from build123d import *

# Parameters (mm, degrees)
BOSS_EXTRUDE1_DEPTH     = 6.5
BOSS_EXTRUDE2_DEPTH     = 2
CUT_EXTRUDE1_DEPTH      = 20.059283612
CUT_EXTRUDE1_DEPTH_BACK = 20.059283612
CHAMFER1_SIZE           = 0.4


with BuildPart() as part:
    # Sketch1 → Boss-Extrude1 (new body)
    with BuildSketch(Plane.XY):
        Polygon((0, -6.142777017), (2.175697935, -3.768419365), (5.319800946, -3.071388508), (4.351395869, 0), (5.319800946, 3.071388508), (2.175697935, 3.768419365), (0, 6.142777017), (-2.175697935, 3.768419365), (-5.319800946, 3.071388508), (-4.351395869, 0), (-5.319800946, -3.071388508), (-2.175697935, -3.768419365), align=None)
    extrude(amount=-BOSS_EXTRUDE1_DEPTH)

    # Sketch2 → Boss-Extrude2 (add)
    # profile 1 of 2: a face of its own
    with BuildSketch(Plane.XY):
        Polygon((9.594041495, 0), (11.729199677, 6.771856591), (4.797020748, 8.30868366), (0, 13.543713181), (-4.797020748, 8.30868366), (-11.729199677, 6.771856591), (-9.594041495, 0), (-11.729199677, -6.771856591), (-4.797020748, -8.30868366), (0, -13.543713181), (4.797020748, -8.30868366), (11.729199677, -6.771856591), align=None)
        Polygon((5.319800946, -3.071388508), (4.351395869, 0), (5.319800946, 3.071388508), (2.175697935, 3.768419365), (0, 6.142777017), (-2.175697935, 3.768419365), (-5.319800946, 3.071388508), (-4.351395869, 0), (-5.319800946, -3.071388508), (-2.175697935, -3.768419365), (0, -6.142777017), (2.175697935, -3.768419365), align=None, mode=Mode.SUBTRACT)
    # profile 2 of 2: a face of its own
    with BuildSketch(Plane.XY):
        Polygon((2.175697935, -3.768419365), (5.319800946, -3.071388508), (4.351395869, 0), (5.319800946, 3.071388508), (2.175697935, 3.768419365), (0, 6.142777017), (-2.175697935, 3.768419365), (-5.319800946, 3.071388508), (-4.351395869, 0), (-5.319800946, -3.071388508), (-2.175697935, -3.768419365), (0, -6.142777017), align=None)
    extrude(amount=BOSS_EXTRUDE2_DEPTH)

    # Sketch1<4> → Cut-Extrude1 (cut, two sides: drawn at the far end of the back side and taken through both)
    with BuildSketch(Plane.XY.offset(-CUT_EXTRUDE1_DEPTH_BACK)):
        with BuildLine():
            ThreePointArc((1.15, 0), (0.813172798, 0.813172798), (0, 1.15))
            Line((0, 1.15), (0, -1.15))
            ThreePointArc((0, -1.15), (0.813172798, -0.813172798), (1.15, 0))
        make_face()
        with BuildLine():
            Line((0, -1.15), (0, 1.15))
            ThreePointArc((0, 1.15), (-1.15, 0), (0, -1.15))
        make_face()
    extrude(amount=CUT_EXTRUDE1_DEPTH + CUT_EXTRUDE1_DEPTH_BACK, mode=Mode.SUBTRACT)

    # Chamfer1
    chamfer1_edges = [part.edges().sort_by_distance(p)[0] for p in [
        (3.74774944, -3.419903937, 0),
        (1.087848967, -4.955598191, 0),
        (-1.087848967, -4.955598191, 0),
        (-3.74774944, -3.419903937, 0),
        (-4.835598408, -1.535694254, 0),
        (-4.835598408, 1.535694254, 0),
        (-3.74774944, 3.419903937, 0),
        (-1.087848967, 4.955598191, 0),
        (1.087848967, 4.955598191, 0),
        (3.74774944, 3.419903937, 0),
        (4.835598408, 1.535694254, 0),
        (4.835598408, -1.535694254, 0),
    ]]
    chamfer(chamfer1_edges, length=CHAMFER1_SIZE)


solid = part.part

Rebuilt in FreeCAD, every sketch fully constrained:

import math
import FreeCAD as App
import Part
import Sketcher
from FreeCAD import Vector
Q = App.Units.Quantity


def edges_at(feature, points):
    """Names of the edges that pass closest to the given points."""
    edges = feature.Shape.Edges
    near = lambda p: min(range(len(edges)), key=lambda i: edges[i].distToShape(Part.Vertex(*p))[0])
    return sorted({f"Edge{near(p) + 1}" for p in points})


def add_polygon(sketch, points):
    """Adds a closed chain of lines whose ends are joined by coincident constraints."""
    first, n = sketch.GeometryCount, len(points)
    for a, b in zip(points, points[1:] + points[:1]):
        sketch.addGeometry(Part.LineSegment(App.Vector(*a, 0), App.Vector(*b, 0)), False)
    for i in range(n):
        sketch.addConstraint(Sketcher.Constraint("Coincident", first + i, 2, first + (i + 1) % n, 1))

doc = App.newDocument("Part")
params = doc.addObject("Spreadsheet::Sheet", "Params")
for row, (alias, value) in enumerate([
    ("pad1_length", "6.5 mm"),
    ("pad2_length", "2 mm"),
    ("sketch3_radius", "1.15 mm"),
    ("chamfer_size", "0.4 mm"),
], start=1):
    params.set(f"A{row}", alias)
    params.set(f"B{row}", "=" + value)
    params.setAlias(f"B{row}", alias)

body = doc.addObject("PartDesign::Body", "Body")

# Sketch on XY plane
sketch1 = body.newObject("Sketcher::SketchObject", "Sketch")
sketch1.AttachmentSupport = (doc.getObject("XY_Plane"), [""])
sketch1.MapMode = "FlatFace"
add_polygon(sketch1, [(0, -6.1), (2.2, -3.8), (5.3, -3.1), (4.4, 0), (5.3, 3.1), (2.2, 3.8), (0, 6.1), (-2.2, 3.8), (-5.3, 3.1), (-4.4, 0), (-5.3, -3.1), (-2.2, -3.8)])  # lines 0-11
sketch1.addConstraint([
    Sketcher.Constraint("Symmetric", 0, 2, 6, 2, -1, 1),
    Sketcher.Constraint("Symmetric", 1, 2, 7, 2, -1, 1),
    Sketcher.Constraint("Symmetric", 2, 2, 8, 2, -1, 1),
    Sketcher.Constraint("Symmetric", 3, 2, 9, 2, -1, 1),
    Sketcher.Constraint("Symmetric", 4, 2, 10, 2, -1, 1),
    Sketcher.Constraint("Symmetric", 5, 2, 11, 2, -1, 1),
    Sketcher.Constraint("Symmetric", 4, 2, 6, 2, -2),
    Sketcher.Constraint("Symmetric", 3, 2, 7, 2, -2),
    Sketcher.Constraint("PointOnObject", 2, 2, -1),
    Sketcher.Constraint("PointOnObject", 5, 2, -2),
    Sketcher.Constraint("Equal", 0, 1),
    Sketcher.Constraint("Equal", 1, 2),
    Sketcher.Constraint("Angle", 0, Q("47.5 deg")),
    Sketcher.Constraint("Angle", 1, Q("12.5 deg")),
    Sketcher.Constraint("Angle", 2, Q("107.5 deg")),
    Sketcher.Constraint("DistanceX", -1, 1, 1, 2, 5.319801),
])
pad1 = body.newObject("PartDesign::Pad", "Pad")
pad1.Profile = sketch1
pad1.setExpression("Length", "Params.pad1_length")
pad1.Reversed = True

# Sketch on XY plane
sketch2 = body.newObject("Sketcher::SketchObject", "Sketch001")
sketch2.AttachmentSupport = (doc.getObject("XY_Plane"), [""])
sketch2.MapMode = "FlatFace"
add_polygon(sketch2, [(10, 0), (12, 7), (5, 8), (0, 14), (-5, 8), (-12, 7), (-10, 0), (-12, -7), (-5, -8), (0, -14), (5, -8), (12, -7)])  # lines 0-11
sketch2.addConstraint([
    Sketcher.Constraint("Symmetric", 0, 2, 6, 2, -1, 1),
    Sketcher.Constraint("Symmetric", 1, 2, 7, 2, -1, 1),
    Sketcher.Constraint("Symmetric", 2, 2, 8, 2, -1, 1),
    Sketcher.Constraint("Symmetric", 3, 2, 9, 2, -1, 1),
    Sketcher.Constraint("Symmetric", 4, 2, 10, 2, -1, 1),
    Sketcher.Constraint("Symmetric", 5, 2, 11, 2, -1, 1),
    Sketcher.Constraint("Symmetric", 1, 2, 3, 2, -2),
    Sketcher.Constraint("Symmetric", 0, 2, 4, 2, -2),
    Sketcher.Constraint("PointOnObject", 2, 2, -2),
    Sketcher.Constraint("PointOnObject", 5, 2, -1),
    Sketcher.Constraint("Equal", 0, 1),
    Sketcher.Constraint("Equal", 1, 2),
    Sketcher.Constraint("Angle", 0, Q("72.5 deg")),
    Sketcher.Constraint("Angle", 1, Q("167.5 deg")),
    Sketcher.Constraint("Angle", 2, Q("132.5 deg")),
    Sketcher.Constraint("DistanceX", -1, 1, 0, 2, 11.7292),
])
pad2 = body.newObject("PartDesign::Pad", "Pad001")
pad2.Profile = sketch2
pad2.setExpression("Length", "Params.pad2_length")

# Sketch on XY plane
sketch3 = body.newObject("Sketcher::SketchObject", "Sketch002")
sketch3.AttachmentSupport = (doc.getObject("XY_Plane"), [""])
sketch3.MapMode = "FlatFace"
sketch3.addGeometry([
    Part.ArcOfCircle(Part.Circle(Vector(0, 0, 0), Vector(0, 0, 1), 1.2), math.radians(0), math.radians(90)),
    Part.ArcOfCircle(Part.Circle(Vector(0, 0, 0), Vector(0, 0, 1), 1.1), math.radians(90), math.radians(270)),
    Part.ArcOfCircle(Part.Circle(Vector(0, 0, 0), Vector(0, 0, 1), 1.2), math.radians(-90), math.radians(0)),
], False)
sketch3.addConstraint([
    Sketcher.Constraint("Tangent", 0, 2, 1, 1),
    Sketcher.Constraint("Tangent", 1, 2, 2, 1),
    Sketcher.Constraint("Tangent", 2, 2, 0, 1),
    Sketcher.Constraint("Coincident", 0, 3, -1, 1),
    Sketcher.Constraint("PointOnObject", 0, 2, -2),
    Sketcher.Constraint("PointOnObject", 1, 2, -2),
    Sketcher.Constraint("PointOnObject", 2, 2, -1),
    Sketcher.Constraint("Radius", 0, 1.15),
])
sketch3.setExpression("Constraints[7]", "Params.sketch3_radius")
pocket1 = body.newObject("PartDesign::Pocket", "Pocket")
pocket1.Profile = sketch3
pocket1.Type = "ThroughAll"
pocket1.Midplane = True
doc.recompute()

chamfer = body.newObject("PartDesign::Chamfer", "Chamfer")
chamfer.Base = (pocket1, edges_at(pocket1, [
    (3.748, -3.42, 0),
    (1.088, -4.956, 0),
    (-1.088, -4.956, 0),
    (-3.748, -3.42, 0),
    (-4.836, -1.536, 0),
    (-4.836, 1.536, 0),
    (-3.748, 3.42, 0),
    (-1.088, 4.956, 0),
    (1.088, 4.956, 0),
    (3.748, 3.42, 0),
    (4.836, 1.536, 0),
    (4.836, -1.536, 0),
]))
chamfer.setExpression("Size", "Params.chamfer_size")

doc.recompute()
